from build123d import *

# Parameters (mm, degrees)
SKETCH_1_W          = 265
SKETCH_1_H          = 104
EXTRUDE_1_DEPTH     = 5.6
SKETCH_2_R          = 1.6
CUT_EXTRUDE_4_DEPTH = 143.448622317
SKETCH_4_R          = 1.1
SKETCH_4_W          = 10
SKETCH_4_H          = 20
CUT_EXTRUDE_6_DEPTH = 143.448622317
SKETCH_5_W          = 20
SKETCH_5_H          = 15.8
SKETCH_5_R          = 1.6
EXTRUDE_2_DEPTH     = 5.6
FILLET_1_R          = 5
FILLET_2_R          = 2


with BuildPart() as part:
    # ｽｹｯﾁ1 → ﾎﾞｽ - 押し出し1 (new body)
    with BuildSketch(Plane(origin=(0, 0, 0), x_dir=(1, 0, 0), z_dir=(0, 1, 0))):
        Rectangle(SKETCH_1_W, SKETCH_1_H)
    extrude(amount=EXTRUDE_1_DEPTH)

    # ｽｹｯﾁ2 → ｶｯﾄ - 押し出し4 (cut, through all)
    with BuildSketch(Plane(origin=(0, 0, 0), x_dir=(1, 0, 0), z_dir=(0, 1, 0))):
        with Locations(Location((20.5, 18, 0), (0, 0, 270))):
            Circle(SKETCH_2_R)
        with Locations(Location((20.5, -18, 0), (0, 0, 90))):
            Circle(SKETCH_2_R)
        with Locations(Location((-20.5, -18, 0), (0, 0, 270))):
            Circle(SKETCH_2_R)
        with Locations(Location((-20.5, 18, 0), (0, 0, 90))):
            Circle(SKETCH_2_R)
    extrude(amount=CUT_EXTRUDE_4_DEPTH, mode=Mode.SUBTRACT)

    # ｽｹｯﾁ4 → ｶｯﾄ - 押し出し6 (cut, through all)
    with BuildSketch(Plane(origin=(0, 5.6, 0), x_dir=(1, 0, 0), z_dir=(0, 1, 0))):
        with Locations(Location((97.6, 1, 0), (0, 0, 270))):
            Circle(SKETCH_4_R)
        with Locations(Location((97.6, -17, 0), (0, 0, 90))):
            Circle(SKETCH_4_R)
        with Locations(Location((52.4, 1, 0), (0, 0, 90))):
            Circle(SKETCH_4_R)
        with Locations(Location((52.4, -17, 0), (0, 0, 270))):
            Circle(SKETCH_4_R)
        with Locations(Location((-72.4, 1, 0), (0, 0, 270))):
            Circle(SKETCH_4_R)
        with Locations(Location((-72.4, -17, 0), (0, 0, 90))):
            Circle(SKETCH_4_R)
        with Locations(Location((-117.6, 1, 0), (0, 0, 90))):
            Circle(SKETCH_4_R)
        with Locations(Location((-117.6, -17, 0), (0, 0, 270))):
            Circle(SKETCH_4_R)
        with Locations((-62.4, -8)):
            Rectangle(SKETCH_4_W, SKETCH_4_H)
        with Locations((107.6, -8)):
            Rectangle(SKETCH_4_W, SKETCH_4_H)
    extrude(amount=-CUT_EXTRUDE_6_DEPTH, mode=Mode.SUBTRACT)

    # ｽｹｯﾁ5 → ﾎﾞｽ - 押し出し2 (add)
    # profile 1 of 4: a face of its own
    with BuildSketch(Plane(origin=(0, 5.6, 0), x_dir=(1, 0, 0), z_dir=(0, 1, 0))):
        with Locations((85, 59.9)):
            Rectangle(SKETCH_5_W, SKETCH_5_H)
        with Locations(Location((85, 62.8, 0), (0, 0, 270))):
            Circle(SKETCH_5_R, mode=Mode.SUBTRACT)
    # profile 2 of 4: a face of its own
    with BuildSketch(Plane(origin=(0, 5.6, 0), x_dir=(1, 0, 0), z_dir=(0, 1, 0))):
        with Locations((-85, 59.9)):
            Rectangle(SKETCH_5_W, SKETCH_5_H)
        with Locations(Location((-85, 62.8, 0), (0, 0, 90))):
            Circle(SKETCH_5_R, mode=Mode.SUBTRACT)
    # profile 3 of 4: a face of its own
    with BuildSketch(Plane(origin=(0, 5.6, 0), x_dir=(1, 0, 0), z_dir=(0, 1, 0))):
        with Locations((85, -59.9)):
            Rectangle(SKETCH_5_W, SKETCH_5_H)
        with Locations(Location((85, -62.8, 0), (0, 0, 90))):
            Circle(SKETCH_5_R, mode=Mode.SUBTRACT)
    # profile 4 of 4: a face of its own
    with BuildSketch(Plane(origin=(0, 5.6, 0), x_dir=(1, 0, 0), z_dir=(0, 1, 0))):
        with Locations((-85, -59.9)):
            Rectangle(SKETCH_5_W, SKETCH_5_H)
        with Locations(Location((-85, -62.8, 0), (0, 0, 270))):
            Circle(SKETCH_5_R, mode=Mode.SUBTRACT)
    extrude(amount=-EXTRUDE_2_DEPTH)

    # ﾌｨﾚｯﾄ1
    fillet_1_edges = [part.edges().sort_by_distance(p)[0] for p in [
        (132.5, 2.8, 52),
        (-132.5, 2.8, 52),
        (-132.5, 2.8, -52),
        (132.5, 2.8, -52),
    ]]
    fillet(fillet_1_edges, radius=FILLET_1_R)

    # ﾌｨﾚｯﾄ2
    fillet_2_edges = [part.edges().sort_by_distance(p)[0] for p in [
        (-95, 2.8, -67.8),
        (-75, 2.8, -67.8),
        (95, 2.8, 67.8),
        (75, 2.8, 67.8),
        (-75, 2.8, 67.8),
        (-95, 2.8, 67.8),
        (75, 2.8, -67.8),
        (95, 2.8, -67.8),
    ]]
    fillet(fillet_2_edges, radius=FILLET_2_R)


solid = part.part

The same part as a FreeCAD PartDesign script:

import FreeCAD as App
import Part
import Sketcher

V = App.Vector
Q = App.Units.Quantity


def edges_at(feature, points):
    """Names of the edges that pass closest to the given points."""
    edges = feature.Shape.Edges
    near = lambda p: min(range(len(edges)), key=lambda i: edges[i].distToShape(Part.Vertex(*p))[0])
    return sorted({f"Edge{near(p) + 1}" for p in points})


def add_polygon(sketch, points):
    """Adds a closed chain of lines whose ends are joined by coincident constraints."""
    first, n = sketch.GeometryCount, len(points)
    for a, b in zip(points, points[1:] + points[:1]):
        sketch.addGeometry(Part.LineSegment(App.Vector(*a, 0), App.Vector(*b, 0)), False)
    for i in range(n):
        sketch.addConstraint(Sketcher.Constraint("Coincident", first + i, 2, first + (i + 1) % n, 1))

doc = App.newDocument("Part")
body = doc.addObject("PartDesign::Body", "Body")

sketch1 = body.newObject("Sketcher::SketchObject", "Sketch")
sketch1.AttachmentSupport = (doc.getObject("XZ_Plane"), [""])
sketch1.MapMode = "FlatFace"
add_polygon(sketch1, [(-132, -52), (-132, 52), (132, 52), (132, -52)])
sketch1.addConstraint([
    Sketcher.Constraint("Vertical", 0),
    Sketcher.Constraint("Horizontal", 1),
    Sketcher.Constraint("Vertical", 2),
    Sketcher.Constraint("Horizontal", 3),
    Sketcher.Constraint("Symmetric", 0, 2, 2, 2, -1, 1),
    Sketcher.Constraint("DistanceX", 1, 1, 1, 2, Q("265 mm")),
    Sketcher.Constraint("DistanceY", 0, 1, 0, 2, Q("104 mm")),
])
pad1 = body.newObject("PartDesign::Pad", "Pad")
pad1.Profile = sketch1
pad1.Length = 5.6
pad1.Reversed = True

sketch2 = body.newObject("Sketcher::SketchObject", "Sketch001")
sketch2.AttachmentSupport = (doc.getObject("XZ_Plane"), [""])
sketch2.MapMode = "FlatFace"
sketch2.addGeometry([
    Part.Circle(V(20.5, -18, 0), V(0, 0, 1), 1.6),
    Part.Circle(V(20.5, 18, 0), V(0, 0, 1), 1.6),
    Part.Circle(V(-20.5, 18, 0), V(0, 0, 1), 1.6),
    Part.Circle(V(-20.5, -18, 0), V(0, 0, 1), 1.6),
], False)
sketch2.addConstraint([
    Sketcher.Constraint("Equal", 0, 1),
    Sketcher.Constraint("Equal", 1, 2),
    Sketcher.Constraint("Equal", 2, 3),
    Sketcher.Constraint("Symmetric", 0, 3, 2, 3, -1, 1),
    Sketcher.Constraint("Symmetric", 1, 3, 3, 3, -1, 1),
    Sketcher.Constraint("Symmetric", 1, 3, 2, 3, -2),
    Sketcher.Constraint("Diameter", 0, Q("3.2 mm")),
    Sketcher.Constraint("DistanceY", 0, 3, -1, 1, Q("18 mm")),
    Sketcher.Constraint("DistanceX", 2, 3, 1, 3, Q("41 mm")),
])
pocket1 = body.newObject("PartDesign::Pocket", "Pocket")
pocket1.Profile = sketch2
pocket1.Type = "ThroughAll"

sketch3 = body.newObject("Sketcher::SketchObject", "Sketch002")
sketch3.AttachmentSupport = (doc.getObject("XZ_Plane"), [""])
sketch3.MapMode = "FlatFace"
sketch3.AttachmentOffset = App.Placement(V(0, 0, -5.6), App.Rotation())
sketch3.addGeometry(Part.Circle(V(97.6, -1, 0), V(0, 0, 1), 1.1), False)
sketch3.addGeometry(Part.Circle(V(97.6, 17, 0), V(0, 0, 1), 1.1), False)
sketch3.addGeometry(Part.Circle(V(52.4, -1, 0), V(0, 0, 1), 1.1), False)
sketch3.addGeometry(Part.Circle(V(52.4, 17, 0), V(0, 0, 1), 1.1), False)
sketch3.addGeometry(Part.Circle(V(-72.4, -1, 0), V(0, 0, 1), 1.1), False)
sketch3.addGeometry(Part.Circle(V(-72.4, 17, 0), V(0, 0, 1), 1.1), False)
sketch3.addGeometry(Part.Circle(V(-117.6, -1, 0), V(0, 0, 1), 1.1), False)
sketch3.addGeometry(Part.Circle(V(-117.6, 17, 0), V(0, 0, 1), 1.1), False)
add_polygon(sketch3, [(-67.4, -2), (-67.4, 18), (-57.4, 18), (-57.4, -2)])
add_polygon(sketch3, [(102.6, -2), (102.6, 18), (112.6, 18), (112.6, -2)])
sketch3.addConstraint([
    Sketcher.Constraint("Vertical", 8),
    Sketcher.Constraint("Horizontal", 9),
    Sketcher.Constraint("Vertical", 10),
    Sketcher.Constraint("Horizontal", 11),
    Sketcher.Constraint("Vertical", 12),
    Sketcher.Constraint("Horizontal", 13),
    Sketcher.Constraint("Vertical", 14),
    Sketcher.Constraint("Horizontal", 15),
    Sketcher.Constraint("Equal", 0, 1),
    Sketcher.Constraint("Equal", 1, 2),
    Sketcher.Constraint("Equal", 2, 3),
    Sketcher.Constraint("Equal", 3, 4),
    Sketcher.Constraint("Equal", 4, 5),
    Sketcher.Constraint("Equal", 5, 6),
    Sketcher.Constraint("Equal", 6, 7),
    Sketcher.Constraint("Horizontal", 0, 3, 2, 3),
    Sketcher.Constraint("Horizontal", 1, 3, 3, 3),
    Sketcher.Constraint("Horizontal", 2, 3, 4, 3),
    Sketcher.Constraint("Horizontal", 3, 3, 5, 3),
    Sketcher.Constraint("Horizontal", 4, 3, 6, 3),
    Sketcher.Constraint("Horizontal", 5, 3, 7, 3),
    Sketcher.Constraint("Horizontal", 9, 2, 12, 2),
    Sketcher.Constraint("Horizontal", 11, 2, 14, 2),
    Sketcher.Constraint("Vertical", 0, 3, 1, 3),
    Sketcher.Constraint("Vertical", 2, 3, 3, 3),
    Sketcher.Constraint("Vertical", 4, 3, 5, 3),
    Sketcher.Constraint("Vertical", 6, 3, 7, 3),
    Sketcher.Constraint("Equal", 11, 13),
    Sketcher.Constraint("Diameter", 0, Q("2.2 mm")),
    Sketcher.Constraint("DistanceX", 9, 1, 9, 2, Q("10 mm")),
    Sketcher.Constraint("DistanceY", 8, 1, 8, 2, Q("20 mm")),
    Sketcher.Constraint("DistanceY", 0, 3, -1, 1, Q("1 mm")),
    Sketcher.Constraint("DistanceY", -1, 1, 1, 3, Q("17 mm")),
    Sketcher.Constraint("DistanceY", -1, 1, 8, 2, Q("18 mm")),
    Sketcher.Constraint("DistanceX", 4, 3, 0, 3, Q("170 mm")),
    Sketcher.Constraint("DistanceX", 6, 3, 2, 3, Q("170 mm")),
    Sketcher.Constraint("DistanceX", 5, 3, 8, 2, Q("5 mm")),
    Sketcher.Constraint("DistanceX", 1, 3, 12, 2, Q("5 mm")),
    Sketcher.Constraint("DistanceX", -1, 1, 0, 3, Q("97.6 mm")),
    Sketcher.Constraint("DistanceX", -1, 1, 2, 3, Q("52.4 mm")),
])
pocket2 = body.newObject("PartDesign::Pocket", "Pocket001")
pocket2.Profile = sketch3
pocket2.Type = "ThroughAll"
pocket2.Reversed = True

sketch4 = body.newObject("Sketcher::SketchObject", "Sketch003")
sketch4.AttachmentSupport = (doc.getObject("XZ_Plane"), [""])
sketch4.MapMode = "FlatFace"
sketch4.AttachmentOffset = App.Placement(V(0, 0, -5.6), App.Rotation())
add_polygon(sketch4, [(75, -67.8), (75, -52), (95, -52), (95, -67.8)])
sketch4.addGeometry(Part.Circle(V(85, -62.8, 0), V(0, 0, 1), 1.6), False)
add_polygon(sketch4, [(-95, -67.8), (-95, -52), (-75, -52), (-75, -67.8)])
sketch4.addGeometry(Part.Circle(V(-85, -62.8, 0), V(0, 0, 1), 1.6), False)
add_polygon(sketch4, [(75, 52), (75, 67.8), (95, 67.8), (95, 52)])
sketch4.addGeometry(Part.Circle(V(85, 62.8, 0), V(0, 0, 1), 1.6), False)
add_polygon(sketch4, [(-95, 52), (-95, 67.8), (-75, 67.8), (-75, 52)])
sketch4.addGeometry(Part.Circle(V(-85, 62.8, 0), V(0, 0, 1), 1.6), False)
sketch4.addConstraint([
    Sketcher.Constraint("Vertical", 0),
    Sketcher.Constraint("Horizontal", 1),
    Sketcher.Constraint("Vertical", 2),
    Sketcher.Constraint("Horizontal", 3),
    Sketcher.Constraint("Vertical", 5),
    Sketcher.Constraint("Horizontal", 6),
    Sketcher.Constraint("Vertical", 7),
    Sketcher.Constraint("Horizontal", 8),
    Sketcher.Constraint("Vertical", 10),
    Sketcher.Constraint("Horizontal", 11),
    Sketcher.Constraint("Vertical", 12),
    Sketcher.Constraint("Horizontal", 13),
    Sketcher.Constraint("Vertical", 15),
    Sketcher.Constraint("Horizontal", 16),
    Sketcher.Constraint("Vertical", 17),
    Sketcher.Constraint("Horizontal", 18),
    Sketcher.Constraint("Equal", 4, 9),
    Sketcher.Constraint("Equal", 9, 14),
    Sketcher.Constraint("Equal", 14, 19),
    Sketcher.Constraint("Symmetric", 9, 3, 14, 3, -1, 1),
    Sketcher.Constraint("Symmetric", 4, 3, 19, 3, -1, 1),
    Sketcher.Constraint("Symmetric", 7, 2, 10, 2, -1, 1),
    Sketcher.Constraint("Symmetric", 5, 2, 12, 2, -1, 1),
    Sketcher.Constraint("Symmetric", 2, 2, 15, 2, -1, 1),
    Sketcher.Constraint("Symmetric", 0, 2, 17, 2, -1, 1),
    Sketcher.Constraint("Symmetric", 4, 3, 9, 3, -2),
    Sketcher.Constraint("Symmetric", 1, 2, 5, 2, -2),
    Sketcher.Constraint("Symmetric", 3, 2, 7, 2, -2),
    Sketcher.Constraint("Diameter", 4, Q("3.2 mm")),
    Sketcher.Constraint("DistanceX", 1, 1, 1, 2, Q("20 mm")),
    Sketcher.Constraint("DistanceY", 0, 1, 0, 2, Q("15.8 mm")),
    Sketcher.Constraint("DistanceX", -1, 1, 4, 3, Q("85 mm")),
    Sketcher.Constraint("DistanceX", -1, 1, 0, 2, Q("75 mm")),
    Sketcher.Constraint("DistanceY", 0, 2, -1, 1, Q("52 mm")),
    Sketcher.Constraint("DistanceY", 2, 2, 4, 3, Q("5 mm")),
])
pad2 = body.newObject("PartDesign::Pad", "Pad001")
pad2.Profile = sketch4
pad2.Length = 5.6
doc.recompute()

fillet = body.newObject("PartDesign::Fillet", "Fillet")
fillet.Base = (pad2, edges_at(pad2, [
    (132.5, 2.8, 52),
    (-132.5, 2.8, 52),
    (-132.5, 2.8, -52),
    (132.5, 2.8, -52),
]))
fillet.Radius = 5
doc.recompute()

fillet2 = body.newObject("PartDesign::Fillet", "Fillet001")
fillet2.Base = (fillet, edges_at(fillet, [
    (-95, 2.8, -67.8),
    (-75, 2.8, -67.8),
    (95, 2.8, 67.8),
    (75, 2.8, 67.8),
    (-75, 2.8, 67.8),
    (-95, 2.8, 67.8),
    (75, 2.8, -67.8),
    (95, 2.8, -67.8),
]))
fillet2.Radius = 2

doc.recompute()
